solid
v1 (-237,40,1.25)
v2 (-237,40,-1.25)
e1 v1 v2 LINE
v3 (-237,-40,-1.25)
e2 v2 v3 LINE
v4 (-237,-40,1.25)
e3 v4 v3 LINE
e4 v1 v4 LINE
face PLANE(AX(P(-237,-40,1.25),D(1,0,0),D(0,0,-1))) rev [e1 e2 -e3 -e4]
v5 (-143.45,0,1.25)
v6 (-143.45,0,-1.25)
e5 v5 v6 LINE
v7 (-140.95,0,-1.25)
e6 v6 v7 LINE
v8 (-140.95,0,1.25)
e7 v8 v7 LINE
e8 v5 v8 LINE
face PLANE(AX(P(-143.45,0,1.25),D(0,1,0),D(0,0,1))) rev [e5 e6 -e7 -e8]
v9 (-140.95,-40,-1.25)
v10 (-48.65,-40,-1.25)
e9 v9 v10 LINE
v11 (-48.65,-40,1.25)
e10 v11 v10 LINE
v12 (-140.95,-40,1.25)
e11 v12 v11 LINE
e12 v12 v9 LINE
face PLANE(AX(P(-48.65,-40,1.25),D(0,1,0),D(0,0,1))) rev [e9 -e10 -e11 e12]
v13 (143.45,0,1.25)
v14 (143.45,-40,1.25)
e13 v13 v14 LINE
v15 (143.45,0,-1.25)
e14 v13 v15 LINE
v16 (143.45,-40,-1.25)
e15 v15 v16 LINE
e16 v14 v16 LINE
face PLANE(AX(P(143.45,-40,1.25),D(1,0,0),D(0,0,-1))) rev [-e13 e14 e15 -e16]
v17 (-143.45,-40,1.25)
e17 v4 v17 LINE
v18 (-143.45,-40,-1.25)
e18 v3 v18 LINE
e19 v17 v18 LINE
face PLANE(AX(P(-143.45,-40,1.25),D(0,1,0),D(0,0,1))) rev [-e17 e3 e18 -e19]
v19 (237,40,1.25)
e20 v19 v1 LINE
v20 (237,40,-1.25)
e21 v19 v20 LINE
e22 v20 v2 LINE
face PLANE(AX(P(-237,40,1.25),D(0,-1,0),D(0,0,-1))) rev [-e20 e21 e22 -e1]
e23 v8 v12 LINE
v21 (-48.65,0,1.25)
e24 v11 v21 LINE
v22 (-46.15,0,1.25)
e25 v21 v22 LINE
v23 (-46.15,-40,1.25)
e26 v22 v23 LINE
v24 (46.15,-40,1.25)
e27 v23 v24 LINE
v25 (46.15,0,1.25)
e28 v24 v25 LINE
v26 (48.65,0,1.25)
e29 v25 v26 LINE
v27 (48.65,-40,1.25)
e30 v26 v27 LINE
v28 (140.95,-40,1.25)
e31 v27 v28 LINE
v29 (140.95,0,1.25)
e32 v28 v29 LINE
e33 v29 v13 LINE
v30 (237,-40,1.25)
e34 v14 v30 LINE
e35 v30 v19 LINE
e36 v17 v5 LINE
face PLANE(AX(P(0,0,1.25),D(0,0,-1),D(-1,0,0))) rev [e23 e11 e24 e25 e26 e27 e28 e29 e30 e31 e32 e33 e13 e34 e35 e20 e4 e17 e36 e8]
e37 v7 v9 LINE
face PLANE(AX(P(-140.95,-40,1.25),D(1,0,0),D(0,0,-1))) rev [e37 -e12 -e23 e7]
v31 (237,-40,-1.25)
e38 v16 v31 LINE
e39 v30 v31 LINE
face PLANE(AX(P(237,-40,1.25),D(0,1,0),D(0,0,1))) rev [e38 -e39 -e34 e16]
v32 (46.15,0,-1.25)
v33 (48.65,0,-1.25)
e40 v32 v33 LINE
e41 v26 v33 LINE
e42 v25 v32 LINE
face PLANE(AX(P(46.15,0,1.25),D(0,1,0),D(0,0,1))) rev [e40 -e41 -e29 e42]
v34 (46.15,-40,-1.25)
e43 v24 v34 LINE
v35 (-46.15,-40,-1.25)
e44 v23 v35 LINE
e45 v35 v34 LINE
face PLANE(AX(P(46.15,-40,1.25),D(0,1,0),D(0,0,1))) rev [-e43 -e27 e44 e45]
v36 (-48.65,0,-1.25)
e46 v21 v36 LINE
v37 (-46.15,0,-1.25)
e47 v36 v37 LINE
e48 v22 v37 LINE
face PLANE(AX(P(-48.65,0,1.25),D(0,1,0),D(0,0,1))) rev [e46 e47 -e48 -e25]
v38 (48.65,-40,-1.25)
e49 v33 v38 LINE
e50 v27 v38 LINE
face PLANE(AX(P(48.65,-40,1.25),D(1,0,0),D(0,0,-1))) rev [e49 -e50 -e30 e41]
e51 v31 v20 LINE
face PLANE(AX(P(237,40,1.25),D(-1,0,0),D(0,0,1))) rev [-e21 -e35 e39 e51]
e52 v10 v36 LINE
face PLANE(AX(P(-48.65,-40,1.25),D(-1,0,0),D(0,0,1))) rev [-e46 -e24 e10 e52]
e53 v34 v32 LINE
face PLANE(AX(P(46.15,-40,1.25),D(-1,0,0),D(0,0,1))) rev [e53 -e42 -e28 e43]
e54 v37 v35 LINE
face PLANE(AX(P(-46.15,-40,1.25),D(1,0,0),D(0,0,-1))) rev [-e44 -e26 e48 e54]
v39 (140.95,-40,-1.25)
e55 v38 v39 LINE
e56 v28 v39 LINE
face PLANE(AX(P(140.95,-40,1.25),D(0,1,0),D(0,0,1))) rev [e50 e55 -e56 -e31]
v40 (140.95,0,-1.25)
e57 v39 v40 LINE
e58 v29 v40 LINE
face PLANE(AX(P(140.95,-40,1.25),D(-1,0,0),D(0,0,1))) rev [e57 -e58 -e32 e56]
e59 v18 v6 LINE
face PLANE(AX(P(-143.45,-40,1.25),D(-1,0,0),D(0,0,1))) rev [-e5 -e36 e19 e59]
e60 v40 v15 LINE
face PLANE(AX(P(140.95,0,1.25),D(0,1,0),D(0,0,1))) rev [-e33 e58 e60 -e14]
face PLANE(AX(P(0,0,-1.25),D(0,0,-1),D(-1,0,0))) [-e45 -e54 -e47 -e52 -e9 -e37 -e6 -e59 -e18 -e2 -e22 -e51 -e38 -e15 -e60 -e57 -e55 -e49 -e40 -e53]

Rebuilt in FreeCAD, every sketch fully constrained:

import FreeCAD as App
import Part
import Sketcher
Q = App.Units.Quantity

doc = App.newDocument("Part")
params = doc.addObject("Spreadsheet::Sheet", "Params")
for row, (alias, value) in enumerate([
    ("sketch1_width", "474 mm"),
    ("sketch1_height", "40 mm"),
    ("sketch1_width2", "2.5 mm"),
    ("sketch1_width3", "92.3 mm"),
    ("pad1_length", "2.5 mm"),
], start=1):
    params.set(f"A{row}", alias)
    params.set(f"B{row}", "=" + value)
    params.setAlias(f"B{row}", alias)

body = doc.addObject("PartDesign::Body", "Body")

sketch1 = body.newObject("Sketcher::SketchObject", "Sketch")
sketch1.AttachmentSupport = (doc.getObject("XY_Plane"), [""])
sketch1.MapMode = "FlatFace"
sketch1.addGeometry(Part.LineSegment(App.Vector(-48.6, -40, 0), App.Vector(-48.6, 0, 0)), False)
sketch1.addGeometry(Part.LineSegment(App.Vector(-48.6, 0, 0), App.Vector(-46.1, 0, 0)), False)
sketch1.addGeometry(Part.LineSegment(App.Vector(-46.1, 0, 0), App.Vector(-46.1, -40, 0)), False)
sketch1.addGeometry(Part.LineSegment(App.Vector(-46.1, -40, 0), App.Vector(46.1, -40, 0)), False)
sketch1.addGeometry(Part.LineSegment(App.Vector(46.1, -40, 0), App.Vector(46.1, 0, 0)), False)
sketch1.addGeometry(Part.LineSegment(App.Vector(46.1, 0, 0), App.Vector(48.6, 0, 0)), False)
sketch1.addGeometry(Part.LineSegment(App.Vector(48.6, 0, 0), App.Vector(48.6, -40, 0)), False)
sketch1.addGeometry(Part.LineSegment(App.Vector(48.6, -40, 0), App.Vector(140.9, -40, 0)), False)
sketch1.addGeometry(Part.LineSegment(App.Vector(140.9, -40, 0), App.Vector(140.9, 0, 0)), False)
sketch1.addGeometry(Part.LineSegment(App.Vector(140.9, 0, 0), App.Vector(143.4, 0, 0)), False)
sketch1.addGeometry(Part.LineSegment(App.Vector(143.4, 0, 0), App.Vector(143.4, -40, 0)), False)
sketch1.addGeometry(Part.LineSegment(App.Vector(143.4, -40, 0), App.Vector(237, -40, 0)), False)
sketch1.addGeometry(Part.LineSegment(App.Vector(237, -40, 0), App.Vector(237, 40, 0)), False)
sketch1.addGeometry(Part.LineSegment(App.Vector(237, 40, 0), App.Vector(-237, 40, 0)), False)
sketch1.addGeometry(Part.LineSegment(App.Vector(-237, 40, 0), App.Vector(-237, -40, 0)), False)
sketch1.addGeometry(Part.LineSegment(App.Vector(-237, -40, 0), App.Vector(-143.4, -40, 0)), False)
sketch1.addGeometry(Part.LineSegment(App.Vector(-143.4, -40, 0), App.Vector(-143.4, 0, 0)), False)
sketch1.addGeometry(Part.LineSegment(App.Vector(-143.4, 0, 0), App.Vector(-140.9, 0, 0)), False)
sketch1.addGeometry(Part.LineSegment(App.Vector(-140.9, 0, 0), App.Vector(-140.9, -40, 0)), False)
sketch1.addGeometry(Part.LineSegment(App.Vector(-140.9, -40, 0), App.Vector(-48.6, -40, 0)), False)
sketch1.addConstraint(Sketcher.Constraint("Coincident", 0, 2, 1, 1))
sketch1.addConstraint(Sketcher.Constraint("Coincident", 1, 2, 2, 1))
sketch1.addConstraint(Sketcher.Constraint("Coincident", 2, 2, 3, 1))
sketch1.addConstraint(Sketcher.Constraint("Coincident", 3, 2, 4, 1))
sketch1.addConstraint(Sketcher.Constraint("Coincident", 4, 2, 5, 1))
sketch1.addConstraint(Sketcher.Constraint("Coincident", 5, 2, 6, 1))
sketch1.addConstraint(Sketcher.Constraint("Coincident", 6, 2, 7, 1))
sketch1.addConstraint(Sketcher.Constraint("Coincident", 7, 2, 8, 1))
sketch1.addConstraint(Sketcher.Constraint("Coincident", 8, 2, 9, 1))
sketch1.addConstraint(Sketcher.Constraint("Coincident", 9, 2, 10, 1))
sketch1.addConstraint(Sketcher.Constraint("Coincident", 10, 2, 11, 1))
sketch1.addConstraint(Sketcher.Constraint("Coincident", 11, 2, 12, 1))
sketch1.addConstraint(Sketcher.Constraint("Coincident", 12, 2, 13, 1))
sketch1.addConstraint(Sketcher.Constraint("Coincident", 13, 2, 14, 1))
sketch1.addConstraint(Sketcher.Constraint("Coincident", 14, 2, 15, 1))
sketch1.addConstraint(Sketcher.Constraint("Coincident", 15, 2, 16, 1))
sketch1.addConstraint(Sketcher.Constraint("Coincident", 16, 2, 17, 1))
sketch1.addConstraint(Sketcher.Constraint("Coincident", 17, 2, 18, 1))
sketch1.addConstraint(Sketcher.Constraint("Coincident", 18, 2, 19, 1))
sketch1.addConstraint(Sketcher.Constraint("Coincident", 19, 2, 0, 1))
sketch1.addConstraint(Sketcher.Constraint("Vertical", 0))
sketch1.addConstraint(Sketcher.Constraint("Horizontal", 1))
sketch1.addConstraint(Sketcher.Constraint("Vertical", 2))
sketch1.addConstraint(Sketcher.Constraint("Horizontal", 3))
sketch1.addConstraint(Sketcher.Constraint("Vertical", 4))
sketch1.addConstraint(Sketcher.Constraint("Horizontal", 5))
sketch1.addConstraint(Sketcher.Constraint("Vertical", 6))
sketch1.addConstraint(Sketcher.Constraint("Horizontal", 7))
sketch1.addConstraint(Sketcher.Constraint("Vertical", 8))
sketch1.addConstraint(Sketcher.Constraint("Horizontal", 9))
sketch1.addConstraint(Sketcher.Constraint("Vertical", 10))
sketch1.addConstraint(Sketcher.Constraint("Horizontal", 11))
sketch1.addConstraint(Sketcher.Constraint("Vertical", 12))
sketch1.addConstraint(Sketcher.Constraint("Horizontal", 13))
sketch1.addConstraint(Sketcher.Constraint("Vertical", 14))
sketch1.addConstraint(Sketcher.Constraint("Horizontal", 15))
sketch1.addConstraint(Sketcher.Constraint("Vertical", 16))
sketch1.addConstraint(Sketcher.Constraint("Horizontal", 17))
sketch1.addConstraint(Sketcher.Constraint("Vertical", 18))
sketch1.addConstraint(Sketcher.Constraint("Horizontal", 19))
sketch1.addConstraint(Sketcher.Constraint("Symmetric", 1, 2, 4, 2, -1, 1))
sketch1.addConstraint(Sketcher.Constraint("Symmetric", 11, 2, 13, 2, -1, 1))
sketch1.addConstraint(Sketcher.Constraint("Symmetric", 9, 2, 16, 2, -1, 1))
sketch1.addConstraint(Sketcher.Constraint("Symmetric", 0, 2, 5, 2, -2))
sketch1.addConstraint(Sketcher.Constraint("Symmetric", 8, 2, 17, 2, -2))
sketch1.addConstraint(Sketcher.Constraint("Horizontal", 3, 2, 6, 2))
sketch1.addConstraint(Sketcher.Constraint("Horizontal", 7, 2, 10, 2))
sketch1.addConstraint(Sketcher.Constraint("Horizontal", 11, 2, 14, 2))
sketch1.addConstraint(Sketcher.Constraint("Horizontal", 15, 2, 18, 2))
sketch1.addConstraint(Sketcher.Constraint("Equal", 3, 7))
sketch1.addConstraint(Sketcher.Constraint("Equal", 5, 9))
sketch1.addConstraint(Sketcher.Constraint("DistanceX", 13, 2, 13, 1, Q("474 mm")))
sketch1.addConstraint(Sketcher.Constraint("DistanceY", 0, 1, 0, 2, Q("40 mm")))
sketch1.addConstraint(Sketcher.Constraint("DistanceX", 1, 1, 1, 2, Q("2.5 mm")))
sketch1.addConstraint(Sketcher.Constraint("DistanceX", 3, 1, 3, 2, Q("92.3 mm")))
sketch1.setExpression("Constraints[51]", "Params.sketch1_width")
sketch1.setExpression("Constraints[52]", "Params.sketch1_height")
sketch1.setExpression("Constraints[53]", "Params.sketch1_width2")
sketch1.setExpression("Constraints[54]", "Params.sketch1_width3")
pad1 = body.newObject("PartDesign::Pad", "Pad")
pad1.Profile = sketch1
pad1.setExpression("Length", "Params.pad1_length")
pad1.Midplane = True

doc.recompute()
